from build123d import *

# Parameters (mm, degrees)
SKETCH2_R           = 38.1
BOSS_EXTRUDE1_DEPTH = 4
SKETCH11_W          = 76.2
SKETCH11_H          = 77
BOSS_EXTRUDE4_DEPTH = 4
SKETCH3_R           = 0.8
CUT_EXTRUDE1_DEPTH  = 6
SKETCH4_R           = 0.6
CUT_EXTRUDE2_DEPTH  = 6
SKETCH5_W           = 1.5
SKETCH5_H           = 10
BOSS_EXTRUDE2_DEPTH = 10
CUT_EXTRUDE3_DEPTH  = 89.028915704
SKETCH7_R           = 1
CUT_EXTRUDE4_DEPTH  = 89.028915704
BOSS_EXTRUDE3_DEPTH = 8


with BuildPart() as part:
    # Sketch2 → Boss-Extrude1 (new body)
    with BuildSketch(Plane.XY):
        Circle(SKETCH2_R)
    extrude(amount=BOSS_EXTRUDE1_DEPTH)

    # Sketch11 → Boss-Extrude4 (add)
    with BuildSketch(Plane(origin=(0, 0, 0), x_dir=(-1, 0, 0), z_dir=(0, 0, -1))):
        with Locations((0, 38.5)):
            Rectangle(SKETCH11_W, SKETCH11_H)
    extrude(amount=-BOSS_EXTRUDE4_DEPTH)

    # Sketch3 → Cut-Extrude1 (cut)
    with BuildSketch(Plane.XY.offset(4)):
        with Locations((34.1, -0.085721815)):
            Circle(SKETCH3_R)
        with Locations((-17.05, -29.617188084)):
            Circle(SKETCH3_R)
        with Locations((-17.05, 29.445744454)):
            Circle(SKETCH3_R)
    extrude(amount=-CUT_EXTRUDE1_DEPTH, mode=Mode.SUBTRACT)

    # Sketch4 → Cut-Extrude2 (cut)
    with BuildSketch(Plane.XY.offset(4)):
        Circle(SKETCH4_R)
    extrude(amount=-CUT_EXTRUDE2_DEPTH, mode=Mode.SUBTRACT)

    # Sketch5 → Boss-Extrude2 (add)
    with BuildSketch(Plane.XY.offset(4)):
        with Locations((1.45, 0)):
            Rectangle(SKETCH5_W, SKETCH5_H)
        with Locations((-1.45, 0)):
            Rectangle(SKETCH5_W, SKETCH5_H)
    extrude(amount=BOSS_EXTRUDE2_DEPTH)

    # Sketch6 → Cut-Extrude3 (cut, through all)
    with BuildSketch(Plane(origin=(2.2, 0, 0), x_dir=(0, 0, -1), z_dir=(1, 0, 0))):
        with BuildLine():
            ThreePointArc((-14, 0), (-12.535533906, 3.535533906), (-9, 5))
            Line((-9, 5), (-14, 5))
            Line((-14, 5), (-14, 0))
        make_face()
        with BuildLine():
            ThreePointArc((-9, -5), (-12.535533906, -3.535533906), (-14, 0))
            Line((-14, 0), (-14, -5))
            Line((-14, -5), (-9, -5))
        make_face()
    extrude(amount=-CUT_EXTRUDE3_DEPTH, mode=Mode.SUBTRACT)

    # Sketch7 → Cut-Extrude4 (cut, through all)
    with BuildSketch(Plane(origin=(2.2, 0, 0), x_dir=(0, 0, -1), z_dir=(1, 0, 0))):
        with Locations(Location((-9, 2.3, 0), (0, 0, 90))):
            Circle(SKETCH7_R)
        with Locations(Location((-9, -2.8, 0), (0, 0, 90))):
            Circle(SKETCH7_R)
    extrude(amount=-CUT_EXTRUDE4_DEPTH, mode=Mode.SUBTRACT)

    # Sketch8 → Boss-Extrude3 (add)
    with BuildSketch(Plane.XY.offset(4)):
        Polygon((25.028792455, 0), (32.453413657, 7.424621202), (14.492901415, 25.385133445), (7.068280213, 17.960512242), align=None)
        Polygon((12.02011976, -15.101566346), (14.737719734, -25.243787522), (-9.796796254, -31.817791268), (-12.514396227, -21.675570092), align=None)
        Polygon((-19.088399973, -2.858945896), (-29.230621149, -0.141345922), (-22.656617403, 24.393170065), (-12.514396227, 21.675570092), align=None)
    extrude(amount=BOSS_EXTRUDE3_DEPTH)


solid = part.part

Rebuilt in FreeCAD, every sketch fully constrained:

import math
import FreeCAD as App
import Part
import Sketcher

V = App.Vector
Q = App.Units.Quantity

doc = App.newDocument("Part")
params = doc.addObject("Spreadsheet::Sheet", "Params")
for row, (alias, value) in enumerate([
    ("sketch1_diameter", "76.2 mm"),
    ("pad1_length", "4 mm"),
    ("sketch2_height", "77 mm"),
    ("sketch2_width", "76.2 mm"),
    ("pad2_length", "4 mm"),
    ("sketch3_diameter", "1.6 mm"),
    ("pocket1_length", "6 mm"),
    ("sketch4_diameter", "1.2 mm"),
    ("pocket2_length", "6 mm"),
    ("sketch5_height", "10 mm"),
    ("sketch5_width", "1.5 mm"),
    ("pad3_length", "10 mm"),
    ("sketch6_radius", "5 mm"),
    ("sketch7_diameter", "2 mm"),
    ("sketch8_length", "10.5 mm"),
    ("sketch8_length2", "25.4 mm"),
    ("pad4_length", "8 mm"),
], start=1):
    params.set(f"A{row}", alias)
    params.set(f"B{row}", "=" + value)
    params.setAlias(f"B{row}", alias)

body = doc.addObject("PartDesign::Body", "Body")

# Sketch on XY plane
sketch1 = doc.addObject("Sketcher::SketchObject", "Sketch")
body.addObject(sketch1)
sketch1.AttachmentSupport = (doc.XY_Plane, [""])
sketch1.MapMode = "FlatFace"
sketch1.addGeometry(Part.Circle(V(0, 0, 0), V(0, 0, 1), 38.1), False)
sketch1.addConstraint(Sketcher.Constraint("Coincident", 0, 3, -1, 1))
sketch1.addConstraint(Sketcher.Constraint("Diameter", 0, 76.2))
sketch1.setExpression("Constraints[1]", "Params.sketch1_diameter")
pad1 = doc.addObject("PartDesign::Pad", "Pad")
body.addObject(pad1)
pad1.Profile = sketch1
pad1.setExpression("Length", "Params.pad1_length")

# Sketch on XY plane
sketch2 = doc.addObject("Sketcher::SketchObject", "Sketch001")
body.addObject(sketch2)
sketch2.AttachmentSupport = (doc.XY_Plane, [""])
sketch2.MapMode = "FlatFace"
sketch2.addGeometry(Part.LineSegment(V(38.1, 77, 0), V(38.1, 0, 0)), False)
sketch2.addGeometry(Part.LineSegment(V(38.1, 0, 0), V(-38.1, 0, 0)), False)
sketch2.addGeometry(Part.LineSegment(V(-38.1, 0, 0), V(-38.1, 77, 0)), False)
sketch2.addGeometry(Part.LineSegment(V(-38.1, 77, 0), V(38.1, 77, 0)), False)
sketch2.addConstraint(Sketcher.Constraint("Coincident", 0, 2, 1, 1))
sketch2.addConstraint(Sketcher.Constraint("Coincident", 1, 2, 2, 1))
sketch2.addConstraint(Sketcher.Constraint("Coincident", 2, 2, 3, 1))
sketch2.addConstraint(Sketcher.Constraint("Coincident", 3, 2, 0, 1))
sketch2.addConstraint(Sketcher.Constraint("Vertical", 0))
sketch2.addConstraint(Sketcher.Constraint("Horizontal", 1))
sketch2.addConstraint(Sketcher.Constraint("Vertical", 2))
sketch2.addConstraint(Sketcher.Constraint("Horizontal", 3))
sketch2.addConstraint(Sketcher.Constraint("Symmetric", 0, 2, 1, 2, -1, 1))
sketch2.addConstraint(Sketcher.Constraint("DistanceY", 0, 2, 0, 1, 77.0))
sketch2.addConstraint(Sketcher.Constraint("DistanceX", 1, 2, 1, 1, 76.2))
sketch2.setExpression("Constraints[9]", "Params.sketch2_height")
sketch2.setExpression("Constraints[10]", "Params.sketch2_width")
pad2 = doc.addObject("PartDesign::Pad", "Pad001")
body.addObject(pad2)
pad2.Profile = sketch2
pad2.setExpression("Length", "Params.pad2_length")

# Sketch on XY plane
sketch3 = doc.addObject("Sketcher::SketchObject", "Sketch002")
body.addObject(sketch3)
sketch3.AttachmentSupport = (doc.XY_Plane, [""])
sketch3.MapMode = "FlatFace"
sketch3.AttachmentOffset = App.Placement(V(0, 0, 4), App.Rotation())
sketch3.addGeometry(Part.Circle(V(34.1, -0.085722, 0), V(0, 0, 1), 0.8), False)
sketch3.addGeometry(Part.Circle(V(-17.05, -29.617188, 0), V(0, 0, 1), 0.8), False)
sketch3.addGeometry(Part.Circle(V(-17.05, 29.445744, 0), V(0, 0, 1), 0.8), False)
sketch3.addConstraint(Sketcher.Constraint("Equal", 0, 1))
sketch3.addConstraint(Sketcher.Constraint("Equal", 1, 2))
sketch3.addConstraint(Sketcher.Constraint("Vertical", 1, 3, 2, 3))
sketch3.addConstraint(Sketcher.Constraint("Diameter", 0, 1.6))
sketch3.addConstraint(Sketcher.Constraint("DistanceX", -1, 1, 0, 3, 34.1))
sketch3.addConstraint(Sketcher.Constraint("DistanceX", 1, 3, -1, 1, 17.05))
sketch3.addConstraint(Sketcher.Constraint("DistanceY", 0, 3, -1, 1, 0.085722))
sketch3.addConstraint(Sketcher.Constraint("DistanceY", 1, 3, -1, 1, 29.617188))
sketch3.addConstraint(Sketcher.Constraint("DistanceY", -1, 1, 2, 3, 29.445744))
sketch3.setExpression("Constraints[3]", "Params.sketch3_diameter")
pocket1 = doc.addObject("PartDesign::Pocket", "Pocket")
body.addObject(pocket1)
pocket1.Profile = sketch3
pocket1.setExpression("Length", "Params.pocket1_length")

# Sketch on XY plane
sketch4 = doc.addObject("Sketcher::SketchObject", "Sketch003")
body.addObject(sketch4)
sketch4.AttachmentSupport = (doc.XY_Plane, [""])
sketch4.MapMode = "FlatFace"
sketch4.AttachmentOffset = App.Placement(V(0, 0, 4), App.Rotation())
sketch4.addGeometry(Part.Circle(V(0, 0, 0), V(0, 0, 1), 0.6), False)
sketch4.addConstraint(Sketcher.Constraint("Coincident", 0, 3, -1, 1))
sketch4.addConstraint(Sketcher.Constraint("Diameter", 0, 1.2))
sketch4.setExpression("Constraints[1]", "Params.sketch4_diameter")
pocket2 = doc.addObject("PartDesign::Pocket", "Pocket001")
body.addObject(pocket2)
pocket2.Profile = sketch4
pocket2.setExpression("Length", "Params.pocket2_length")

# Sketch on XY plane
sketch5 = doc.addObject("Sketcher::SketchObject", "Sketch004")
body.addObject(sketch5)
sketch5.AttachmentSupport = (doc.XY_Plane, [""])
sketch5.MapMode = "FlatFace"
sketch5.AttachmentOffset = App.Placement(V(0, 0, 4), App.Rotation())
sketch5.addGeometry(Part.LineSegment(V(0.7, 5, 0), V(0.7, -5, 0)), False)
sketch5.addGeometry(Part.LineSegment(V(0.7, -5, 0), V(2.2, -5, 0)), False)
sketch5.addGeometry(Part.LineSegment(V(2.2, -5, 0), V(2.2, 5, 0)), False)
sketch5.addGeometry(Part.LineSegment(V(2.2, 5, 0), V(0.7, 5, 0)), False)
sketch5.addGeometry(Part.LineSegment(V(-2.2, 5, 0), V(-2.2, -5, 0)), False)
sketch5.addGeometry(Part.LineSegment(V(-2.2, -5, 0), V(-0.7, -5, 0)), False)
sketch5.addGeometry(Part.LineSegment(V(-0.7, -5, 0), V(-0.7, 5, 0)), False)
sketch5.addGeometry(Part.LineSegment(V(-0.7, 5, 0), V(-2.2, 5, 0)), False)
sketch5.addConstraint(Sketcher.Constraint("Coincident", 0, 2, 1, 1))
sketch5.addConstraint(Sketcher.Constraint("Coincident", 1, 2, 2, 1))
sketch5.addConstraint(Sketcher.Constraint("Coincident", 2, 2, 3, 1))
sketch5.addConstraint(Sketcher.Constraint("Coincident", 3, 2, 0, 1))
sketch5.addConstraint(Sketcher.Constraint("Coincident", 4, 2, 5, 1))
sketch5.addConstraint(Sketcher.Constraint("Coincident", 5, 2, 6, 1))
sketch5.addConstraint(Sketcher.Constraint("Coincident", 6, 2, 7, 1))
sketch5.addConstraint(Sketcher.Constraint("Coincident", 7, 2, 4, 1))
sketch5.addConstraint(Sketcher.Constraint("Vertical", 0))
sketch5.addConstraint(Sketcher.Constraint("Horizontal", 1))
sketch5.addConstraint(Sketcher.Constraint("Vertical", 2))
sketch5.addConstraint(Sketcher.Constraint("Horizontal", 3))
sketch5.addConstraint(Sketcher.Constraint("Vertical", 4))
sketch5.addConstraint(Sketcher.Constraint("Horizontal", 5))
sketch5.addConstraint(Sketcher.Constraint("Vertical", 6))
sketch5.addConstraint(Sketcher.Constraint("Horizontal", 7))
sketch5.addConstraint(Sketcher.Constraint("Symmetric", 2, 2, 4, 2, -1, 1))
sketch5.addConstraint(Sketcher.Constraint("Symmetric", 0, 2, 6, 2, -1, 1))
sketch5.addConstraint(Sketcher.Constraint("Horizontal", 1, 2, 4, 2))
sketch5.addConstraint(Sketcher.Constraint("DistanceY", 0, 2, 0, 1, 10.0))
sketch5.addConstraint(Sketcher.Constraint("DistanceX", 1, 1, 1, 2, 1.5))
sketch5.addConstraint(Sketcher.Constraint("DistanceX", -1, 1, 0, 2, 0.7))
sketch5.setExpression("Constraints[19]", "Params.sketch5_height")
sketch5.setExpression("Constraints[20]", "Params.sketch5_width")
pad3 = doc.addObject("PartDesign::Pad", "Pad002")
body.addObject(pad3)
pad3.Profile = sketch5
pad3.setExpression("Length", "Params.pad3_length")

# Sketch on YZ plane
sketch6 = doc.addObject("Sketcher::SketchObject", "Sketch005")
body.addObject(sketch6)
sketch6.AttachmentSupport = (doc.YZ_Plane, [""])
sketch6.MapMode = "FlatFace"
sketch6.AttachmentOffset = App.Placement(V(0, 0, 2.2), App.Rotation())
sketch6.addGeometry(Part.ArcOfCircle(Part.Circle(V(0, 9, 0), V(0, 0, 1), 5), math.radians(0), math.radians(90)), False)
sketch6.addGeometry(Part.LineSegment(V(5, 9, 0), V(5, 14, 0)), False)
sketch6.addGeometry(Part.LineSegment(V(5, 14, 0), V(0, 14, 0)), False)
sketch6.addGeometry(Part.ArcOfCircle(Part.Circle(V(0, 9, 0), V(0, 0, 1), 5), math.radians(90), math.radians(180)), False)
sketch6.addGeometry(Part.LineSegment(V(0, 14, 0), V(-5, 14, 0)), False)
sketch6.addGeometry(Part.LineSegment(V(-5, 14, 0), V(-5, 9, 0)), False)
sketch6.addConstraint(Sketcher.Constraint("Tangent", 0, 1, 1, 1))
sketch6.addConstraint(Sketcher.Constraint("Coincident", 1, 2, 2, 1))
sketch6.addConstraint(Sketcher.Constraint("Tangent", 2, 2, 0, 2))
sketch6.addConstraint(Sketcher.Constraint("Tangent", 3, 1, 4, 1))
sketch6.addConstraint(Sketcher.Constraint("Coincident", 4, 2, 5, 1))
sketch6.addConstraint(Sketcher.Constraint("Tangent", 5, 2, 3, 2))
sketch6.addConstraint(Sketcher.Constraint("Vertical", 1))
sketch6.addConstraint(Sketcher.Constraint("Horizontal", 2))
sketch6.addConstraint(Sketcher.Constraint("Horizontal", 4))
sketch6.addConstraint(Sketcher.Constraint("Vertical", 5))
sketch6.addConstraint(Sketcher.Constraint("Coincident", 3, 3, 0, 3))
sketch6.addConstraint(Sketcher.Constraint("Equal", 0, 3))
sketch6.addConstraint(Sketcher.Constraint("PointOnObject", 0, 3, -2))
sketch6.addConstraint(Sketcher.Constraint("Radius", 0, 5.0))
sketch6.addConstraint(Sketcher.Constraint("DistanceY", -1, 1, 0, 3, 9.0))
sketch6.setExpression("Constraints[13]", "Params.sketch6_radius")
pocket3 = doc.addObject("PartDesign::Pocket", "Pocket002")
body.addObject(pocket3)
pocket3.Profile = sketch6
pocket3.Type = "ThroughAll"

# Sketch on YZ plane
sketch7 = doc.addObject("Sketcher::SketchObject", "Sketch006")
body.addObject(sketch7)
sketch7.AttachmentSupport = (doc.YZ_Plane, [""])
sketch7.MapMode = "FlatFace"
sketch7.AttachmentOffset = App.Placement(V(0, 0, 2.2), App.Rotation())
sketch7.addGeometry(Part.Circle(V(2.3, 9, 0), V(0, 0, 1), 1), False)
sketch7.addGeometry(Part.Circle(V(-2.8, 9, 0), V(0, 0, 1), 1), False)
sketch7.addConstraint(Sketcher.Constraint("Equal", 0, 1))
sketch7.addConstraint(Sketcher.Constraint("Horizontal", 0, 3, 1, 3))
sketch7.addConstraint(Sketcher.Constraint("Diameter", 0, 2.0))
sketch7.addConstraint(Sketcher.Constraint("DistanceY", -1, 1, 0, 3, 9.0))
sketch7.addConstraint(Sketcher.Constraint("DistanceX", -1, 1, 0, 3, 2.3))
sketch7.addConstraint(Sketcher.Constraint("DistanceX", 1, 3, -1, 1, 2.8))
sketch7.setExpression("Constraints[2]", "Params.sketch7_diameter")
pocket4 = doc.addObject("PartDesign::Pocket", "Pocket003")
body.addObject(pocket4)
pocket4.Profile = sketch7
pocket4.Type = "ThroughAll"

# Sketch on XY plane
sketch8 = doc.addObject("Sketcher::SketchObject", "Sketch007")
body.addObject(sketch8)
sketch8.AttachmentSupport = (doc.XY_Plane, [""])
sketch8.MapMode = "FlatFace"
sketch8.AttachmentOffset = App.Placement(V(0, 0, 4), App.Rotation())
sketch8.addGeometry(Part.LineSegment(V(25.028792, 0, 0), V(32.453414, 7.424621, 0)), False)
sketch8.addGeometry(Part.LineSegment(V(32.453414, 7.424621, 0), V(14.492901, 25.385133, 0)), False)
sketch8.addGeometry(Part.LineSegment(V(14.492901, 25.385133, 0), V(7.06828, 17.960512, 0)), False)
sketch8.addGeometry(Part.LineSegment(V(7.06828, 17.960512, 0), V(25.028792, 0, 0)), False)
sketch8.addGeometry(Part.LineSegment(V(14.73772, -25.243788, 0), V(12.02012, -15.101566, 0)), False)
sketch8.addGeometry(Part.LineSegment(V(12.02012, -15.101566, 0), V(-12.514396, -21.67557, 0)), False)
sketch8.addGeometry(Part.LineSegment(V(-12.514396, -21.67557, 0), V(-9.796796, -31.817791, 0)), False)
sketch8.addGeometry(Part.LineSegment(V(-9.796796, -31.817791, 0), V(14.73772, -25.243788, 0)), False)
sketch8.addGeometry(Part.LineSegment(V(-29.230621, -0.141346, 0), V(-19.0884, -2.858946, 0)), False)
sketch8.addGeometry(Part.LineSegment(V(-19.0884, -2.858946, 0), V(-12.514396, 21.67557, 0)), False)
sketch8.addGeometry(Part.LineSegment(V(-12.514396, 21.67557, 0), V(-22.656617, 24.39317, 0)), False)
sketch8.addGeometry(Part.LineSegment(V(-22.656617, 24.39317, 0), V(-29.230621, -0.141346, 0)), False)
sketch8.addConstraint(Sketcher.Constraint("Coincident", 0, 2, 1, 1))
sketch8.addConstraint(Sketcher.Constraint("Coincident", 1, 2, 2, 1))
sketch8.addConstraint(Sketcher.Constraint("Coincident", 2, 2, 3, 1))
sketch8.addConstraint(Sketcher.Constraint("Coincident", 3, 2, 0, 1))
sketch8.addConstraint(Sketcher.Constraint("Coincident", 4, 2, 5, 1))
sketch8.addConstraint(Sketcher.Constraint("Coincident", 5, 2, 6, 1))
sketch8.addConstraint(Sketcher.Constraint("Coincident", 6, 2, 7, 1))
sketch8.addConstraint(Sketcher.Constraint("Coincident", 7, 2, 4, 1))
sketch8.addConstraint(Sketcher.Constraint("Coincident", 8, 2, 9, 1))
sketch8.addConstraint(Sketcher.Constraint("Coincident", 9, 2, 10, 1))
sketch8.addConstraint(Sketcher.Constraint("Coincident", 10, 2, 11, 1))
sketch8.addConstraint(Sketcher.Constraint("Coincident", 11, 2, 8, 1))
sketch8.addConstraint(Sketcher.Constraint("Symmetric", 5, 2, 9, 2, -1))
sketch8.addConstraint(Sketcher.Constraint("PointOnObject", 3, 2, -1))
sketch8.addConstraint(Sketcher.Constraint("Perpendicular", 0, 1))
sketch8.addConstraint(Sketcher.Constraint("Perpendicular", 1, 2))
sketch8.addConstraint(Sketcher.Constraint("Perpendicular", 2, 3))
sketch8.addConstraint(Sketcher.Constraint("Perpendicular", 4, 5))
sketch8.addConstraint(Sketcher.Constraint("Perpendicular", 5, 6))
sketch8.addConstraint(Sketcher.Constraint("Perpendicular", 6, 7))
sketch8.addConstraint(Sketcher.Constraint("Perpendicular", 8, 9))
sketch8.addConstraint(Sketcher.Constraint("Perpendicular", 9, 10))
sketch8.addConstraint(Sketcher.Constraint("Perpendicular", 10, 11))
sketch8.addConstraint(Sketcher.Constraint("Equal", 2, 4))
sketch8.addConstraint(Sketcher.Constraint("Equal", 3, 5))
sketch8.addConstraint(Sketcher.Constraint("Equal", 6, 8))
sketch8.addConstraint(Sketcher.Constraint("Equal", 7, 9))
sketch8.addConstraint(Sketcher.Constraint("Angle", 0, Q("45 deg")))
sketch8.addConstraint(Sketcher.Constraint("Angle", 4, Q("105 deg")))
sketch8.addConstraint(Sketcher.Constraint("Angle", 8, Q("-15 deg")))
sketch8.addConstraint(Sketcher.Constraint("Distance", 0, 10.5))
sketch8.addConstraint(Sketcher.Constraint("Distance", 1, 25.4))
sketch8.addConstraint(Sketcher.Constraint("DistanceX", -1, 1, 1, 2, 14.492901))
sketch8.addConstraint(Sketcher.Constraint("DistanceX", 8, 2, -1, 1, 19.0884))
sketch8.addConstraint(Sketcher.Constraint("DistanceY", 4, 2, 1, 2, 40.4867))
sketch8.setExpression("Constraints[30]", "Params.sketch8_length")
sketch8.setExpression("Constraints[31]", "Params.sketch8_length2")
pad4 = doc.addObject("PartDesign::Pad", "Pad003")
body.addObject(pad4)
pad4.Profile = sketch8
pad4.setExpression("Length", "Params.pad4_length")

doc.recompute()
